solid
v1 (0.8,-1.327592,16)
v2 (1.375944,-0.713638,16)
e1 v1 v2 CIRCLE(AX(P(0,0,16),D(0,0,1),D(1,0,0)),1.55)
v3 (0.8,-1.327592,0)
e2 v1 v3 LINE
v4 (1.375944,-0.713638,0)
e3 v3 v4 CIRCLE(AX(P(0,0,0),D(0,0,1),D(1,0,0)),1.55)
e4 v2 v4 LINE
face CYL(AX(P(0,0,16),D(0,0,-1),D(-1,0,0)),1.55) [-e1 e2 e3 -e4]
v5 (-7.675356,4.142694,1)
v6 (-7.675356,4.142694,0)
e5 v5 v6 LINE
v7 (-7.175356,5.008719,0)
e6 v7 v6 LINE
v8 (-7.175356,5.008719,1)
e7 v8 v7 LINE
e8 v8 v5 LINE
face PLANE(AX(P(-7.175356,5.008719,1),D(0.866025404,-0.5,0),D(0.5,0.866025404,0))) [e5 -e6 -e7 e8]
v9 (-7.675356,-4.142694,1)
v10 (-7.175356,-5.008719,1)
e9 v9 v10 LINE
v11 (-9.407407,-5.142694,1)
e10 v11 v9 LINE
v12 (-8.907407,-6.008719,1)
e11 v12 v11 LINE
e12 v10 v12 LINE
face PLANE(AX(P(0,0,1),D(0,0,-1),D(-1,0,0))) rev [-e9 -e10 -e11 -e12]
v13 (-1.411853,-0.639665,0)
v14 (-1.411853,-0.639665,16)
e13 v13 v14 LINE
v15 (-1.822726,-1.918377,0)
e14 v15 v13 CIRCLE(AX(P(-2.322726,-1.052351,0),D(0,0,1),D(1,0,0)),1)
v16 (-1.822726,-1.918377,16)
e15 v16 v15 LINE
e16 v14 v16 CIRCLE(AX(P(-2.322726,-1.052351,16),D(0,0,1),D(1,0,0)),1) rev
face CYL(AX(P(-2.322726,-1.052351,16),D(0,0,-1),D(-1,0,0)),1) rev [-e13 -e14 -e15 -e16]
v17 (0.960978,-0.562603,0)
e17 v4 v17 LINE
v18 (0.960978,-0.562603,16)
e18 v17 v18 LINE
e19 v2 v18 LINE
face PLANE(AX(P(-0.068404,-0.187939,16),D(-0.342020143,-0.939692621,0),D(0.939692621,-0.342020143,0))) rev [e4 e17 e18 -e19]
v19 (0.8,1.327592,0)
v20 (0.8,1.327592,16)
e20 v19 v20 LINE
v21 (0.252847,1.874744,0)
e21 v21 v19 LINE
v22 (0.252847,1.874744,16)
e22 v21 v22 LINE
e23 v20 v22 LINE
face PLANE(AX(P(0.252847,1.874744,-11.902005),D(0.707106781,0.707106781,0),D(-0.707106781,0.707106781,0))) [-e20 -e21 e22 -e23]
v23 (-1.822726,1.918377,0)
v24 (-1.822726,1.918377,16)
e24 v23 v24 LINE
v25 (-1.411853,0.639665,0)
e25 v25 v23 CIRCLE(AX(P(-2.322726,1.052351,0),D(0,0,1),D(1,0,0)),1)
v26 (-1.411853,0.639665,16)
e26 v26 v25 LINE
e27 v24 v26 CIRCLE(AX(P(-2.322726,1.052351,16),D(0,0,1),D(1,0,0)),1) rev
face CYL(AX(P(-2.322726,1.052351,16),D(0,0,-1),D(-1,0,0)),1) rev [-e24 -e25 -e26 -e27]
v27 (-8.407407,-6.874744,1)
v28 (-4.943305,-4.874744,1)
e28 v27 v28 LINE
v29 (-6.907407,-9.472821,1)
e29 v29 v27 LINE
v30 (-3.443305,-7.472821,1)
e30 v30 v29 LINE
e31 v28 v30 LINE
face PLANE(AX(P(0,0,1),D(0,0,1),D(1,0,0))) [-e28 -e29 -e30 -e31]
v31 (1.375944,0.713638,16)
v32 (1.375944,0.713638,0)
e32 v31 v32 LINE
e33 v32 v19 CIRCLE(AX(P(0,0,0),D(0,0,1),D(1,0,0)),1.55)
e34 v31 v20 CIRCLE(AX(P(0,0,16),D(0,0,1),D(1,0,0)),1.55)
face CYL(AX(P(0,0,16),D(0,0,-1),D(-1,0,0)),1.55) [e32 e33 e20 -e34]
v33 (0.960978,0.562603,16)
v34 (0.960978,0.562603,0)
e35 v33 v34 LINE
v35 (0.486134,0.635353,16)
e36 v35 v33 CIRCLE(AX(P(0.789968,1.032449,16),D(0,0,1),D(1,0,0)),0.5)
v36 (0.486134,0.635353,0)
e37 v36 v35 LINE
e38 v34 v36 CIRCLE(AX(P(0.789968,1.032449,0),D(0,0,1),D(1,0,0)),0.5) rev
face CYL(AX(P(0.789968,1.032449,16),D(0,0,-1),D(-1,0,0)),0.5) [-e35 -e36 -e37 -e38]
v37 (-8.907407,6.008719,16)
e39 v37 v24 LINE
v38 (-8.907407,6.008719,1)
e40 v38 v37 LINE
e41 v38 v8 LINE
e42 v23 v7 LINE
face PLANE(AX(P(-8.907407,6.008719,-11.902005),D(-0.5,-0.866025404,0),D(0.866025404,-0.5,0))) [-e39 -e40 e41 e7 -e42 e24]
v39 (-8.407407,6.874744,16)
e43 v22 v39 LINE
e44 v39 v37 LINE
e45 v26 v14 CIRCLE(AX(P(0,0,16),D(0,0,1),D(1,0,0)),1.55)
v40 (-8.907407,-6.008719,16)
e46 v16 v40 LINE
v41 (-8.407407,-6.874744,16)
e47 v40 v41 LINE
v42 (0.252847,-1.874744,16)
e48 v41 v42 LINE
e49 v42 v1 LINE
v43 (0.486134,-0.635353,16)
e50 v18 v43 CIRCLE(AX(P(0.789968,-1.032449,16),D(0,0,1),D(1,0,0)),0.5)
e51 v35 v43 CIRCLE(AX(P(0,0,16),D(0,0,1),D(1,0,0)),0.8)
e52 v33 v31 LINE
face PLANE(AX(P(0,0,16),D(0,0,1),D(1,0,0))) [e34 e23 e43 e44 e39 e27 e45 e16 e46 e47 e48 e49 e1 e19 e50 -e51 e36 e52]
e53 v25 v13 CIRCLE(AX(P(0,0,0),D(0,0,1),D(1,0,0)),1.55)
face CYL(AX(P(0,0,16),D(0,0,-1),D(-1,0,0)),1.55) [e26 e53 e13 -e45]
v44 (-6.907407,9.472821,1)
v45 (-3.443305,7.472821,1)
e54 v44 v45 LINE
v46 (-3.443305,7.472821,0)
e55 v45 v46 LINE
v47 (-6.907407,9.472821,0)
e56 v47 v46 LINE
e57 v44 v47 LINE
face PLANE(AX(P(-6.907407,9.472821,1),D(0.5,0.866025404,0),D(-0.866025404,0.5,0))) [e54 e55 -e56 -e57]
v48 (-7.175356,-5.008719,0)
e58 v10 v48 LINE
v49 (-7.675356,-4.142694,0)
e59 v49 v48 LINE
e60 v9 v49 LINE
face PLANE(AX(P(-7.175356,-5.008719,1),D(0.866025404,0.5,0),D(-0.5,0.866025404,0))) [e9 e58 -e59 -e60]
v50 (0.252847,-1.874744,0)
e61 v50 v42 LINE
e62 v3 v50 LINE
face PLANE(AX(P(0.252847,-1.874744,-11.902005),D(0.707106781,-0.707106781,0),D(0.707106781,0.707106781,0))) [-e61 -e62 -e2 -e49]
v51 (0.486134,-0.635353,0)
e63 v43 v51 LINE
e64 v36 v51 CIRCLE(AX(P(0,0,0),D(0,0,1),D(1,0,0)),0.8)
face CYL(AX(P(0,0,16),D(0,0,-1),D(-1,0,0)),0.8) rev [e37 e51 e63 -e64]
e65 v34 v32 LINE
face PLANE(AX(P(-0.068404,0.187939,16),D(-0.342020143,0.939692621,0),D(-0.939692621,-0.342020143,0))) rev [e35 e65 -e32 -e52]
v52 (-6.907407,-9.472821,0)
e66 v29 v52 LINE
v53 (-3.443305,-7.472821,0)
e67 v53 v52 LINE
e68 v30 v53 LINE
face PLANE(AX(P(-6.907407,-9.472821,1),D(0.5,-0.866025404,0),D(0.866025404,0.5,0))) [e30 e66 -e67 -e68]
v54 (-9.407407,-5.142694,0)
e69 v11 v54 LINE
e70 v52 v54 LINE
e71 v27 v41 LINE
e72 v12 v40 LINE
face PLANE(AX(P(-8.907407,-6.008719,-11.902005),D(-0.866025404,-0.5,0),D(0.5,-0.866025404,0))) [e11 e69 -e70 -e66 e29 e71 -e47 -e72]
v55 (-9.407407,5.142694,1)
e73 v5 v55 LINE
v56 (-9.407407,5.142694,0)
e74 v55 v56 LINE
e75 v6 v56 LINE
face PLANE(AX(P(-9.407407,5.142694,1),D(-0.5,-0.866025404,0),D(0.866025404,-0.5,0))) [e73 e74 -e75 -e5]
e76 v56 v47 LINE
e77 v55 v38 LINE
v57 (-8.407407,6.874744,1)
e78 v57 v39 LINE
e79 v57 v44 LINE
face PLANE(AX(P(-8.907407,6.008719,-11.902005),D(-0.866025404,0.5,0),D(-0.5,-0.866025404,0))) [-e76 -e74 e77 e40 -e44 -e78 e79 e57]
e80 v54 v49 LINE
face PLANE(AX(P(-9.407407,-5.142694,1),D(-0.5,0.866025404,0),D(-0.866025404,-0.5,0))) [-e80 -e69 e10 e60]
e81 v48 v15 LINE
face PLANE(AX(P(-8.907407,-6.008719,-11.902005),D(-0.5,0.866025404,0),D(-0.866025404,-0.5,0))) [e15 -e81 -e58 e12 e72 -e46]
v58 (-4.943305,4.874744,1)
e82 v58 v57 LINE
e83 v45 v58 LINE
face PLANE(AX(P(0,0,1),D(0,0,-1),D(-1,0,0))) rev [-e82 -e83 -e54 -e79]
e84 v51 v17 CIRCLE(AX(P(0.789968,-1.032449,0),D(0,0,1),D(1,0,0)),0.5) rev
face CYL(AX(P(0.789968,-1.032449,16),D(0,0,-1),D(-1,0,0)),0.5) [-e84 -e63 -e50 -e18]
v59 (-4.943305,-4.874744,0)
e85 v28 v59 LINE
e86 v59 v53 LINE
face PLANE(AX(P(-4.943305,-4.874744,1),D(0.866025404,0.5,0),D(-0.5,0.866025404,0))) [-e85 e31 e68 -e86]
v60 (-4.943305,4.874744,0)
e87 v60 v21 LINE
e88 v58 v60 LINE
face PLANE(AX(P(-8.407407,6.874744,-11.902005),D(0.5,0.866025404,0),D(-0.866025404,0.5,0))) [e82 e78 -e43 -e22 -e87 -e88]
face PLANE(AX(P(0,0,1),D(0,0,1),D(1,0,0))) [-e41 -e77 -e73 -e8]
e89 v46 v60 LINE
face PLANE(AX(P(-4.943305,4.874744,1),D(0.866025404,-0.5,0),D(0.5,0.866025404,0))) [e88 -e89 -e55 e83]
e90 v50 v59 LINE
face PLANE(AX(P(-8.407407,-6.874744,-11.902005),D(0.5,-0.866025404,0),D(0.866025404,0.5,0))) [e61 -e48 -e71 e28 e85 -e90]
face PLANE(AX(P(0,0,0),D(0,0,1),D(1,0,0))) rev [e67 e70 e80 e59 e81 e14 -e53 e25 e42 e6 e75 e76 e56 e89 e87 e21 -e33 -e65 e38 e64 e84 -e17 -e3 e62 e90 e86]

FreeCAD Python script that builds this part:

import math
import FreeCAD as App
import Part
import Sketcher
Q = App.Units.Quantity


def edges_at(feature, points):
    """Names of the edges that pass closest to the given points."""
    edges = feature.Shape.Edges
    near = lambda p: min(range(len(edges)), key=lambda i: edges[i].distToShape(Part.Vertex(*p))[0])
    return sorted({f"Edge{near(p) + 1}" for p in points})


def add_polygon(sketch, points):
    """Adds a closed chain of lines whose ends are joined by coincident constraints."""
    first, n = sketch.GeometryCount, len(points)
    for a, b in zip(points, points[1:] + points[:1]):
        sketch.addGeometry(Part.LineSegment(App.Vector(*a, 0), App.Vector(*b, 0)), False)
    for i in range(n):
        sketch.addConstraint(Sketcher.Constraint("Coincident", first + i, 2, first + (i + 1) % n, 1))

doc = App.newDocument("Part")
body = doc.addObject("PartDesign::Body", "Body")

# Sketch on XY plane
sketch1 = body.newObject("Sketcher::SketchObject", "Sketch")
sketch1.AttachmentSupport = (doc.getObject("XY_Plane"), [""])
sketch1.MapMode = "FlatFace"
sketch1.addGeometry([
    Part.LineSegment(App.Vector(0.7, 0.5, 0), App.Vector(1.4, 0.7, 0)),
    Part.ArcOfCircle(Part.Circle(App.Vector(0, 0, 0), App.Vector(0, 0, 1), 1.6), math.radians(27), math.radians(333)),
    Part.LineSegment(App.Vector(1.4, -0.7, 0), App.Vector(0.7, -0.5, 0)),
    Part.ArcOfCircle(Part.Circle(App.Vector(0, 0, 0), App.Vector(0, 0, 1), 0.8), math.radians(34), math.radians(326)),
], False)
sketch1.addConstraint([
    Sketcher.Constraint("Coincident", 0, 2, 1, 1),
    Sketcher.Constraint("Coincident", 1, 2, 2, 1),
    Sketcher.Constraint("Coincident", 2, 2, 3, 2),
    Sketcher.Constraint("Coincident", 3, 1, 0, 1),
    Sketcher.Constraint("Coincident", 1, 3, -1, 1),
    Sketcher.Constraint("Coincident", 3, 3, -1, 1),
    Sketcher.Constraint("Vertical", 0, 2, 1, 2),
    Sketcher.Constraint("Vertical", 2, 2, 3, 1),
    Sketcher.Constraint("Radius", 3, Q("0.8 mm")),
    Sketcher.Constraint("Angle", 0, Q("20 deg")),
    Sketcher.Constraint("Radius", 1, Q("1.55 mm")),
    Sketcher.Constraint("DistanceY", -1, 1, 0, 2, Q("0.713638 mm")),
])
pad1 = body.newObject("PartDesign::Pad", "Pad")
pad1.Profile = sketch1
pad1.Length = 16

# Sketch on XY plane
sketch2 = body.newObject("Sketcher::SketchObject", "Sketch001")
sketch2.AttachmentSupport = (doc.getObject("XY_Plane"), [""])
sketch2.MapMode = "FlatFace"
sketch2.AttachmentOffset = App.Placement(App.Vector(0, 0, 16), App.Rotation())
add_polygon(sketch2, [(-8.4, 6.9), (-8.9, 6), (0.1, 0.8), (1.3, 0.8), (0.3, 1.9)])  # lines 0-4
add_polygon(sketch2, [(0.3, -1.9), (1.3, -0.8), (0.1, -0.8), (-8.9, -6), (-8.4, -6.9)])  # lines 5-9
sketch2.addConstraint([
    Sketcher.Constraint("Horizontal", 2),
    Sketcher.Constraint("Horizontal", 6),
    Sketcher.Constraint("Symmetric", 2, 2, 5, 2, -1),
    Sketcher.Constraint("Symmetric", 0, 2, 7, 2, -1),
    Sketcher.Constraint("Symmetric", 4, 2, 8, 2, -1),
    Sketcher.Constraint("Symmetric", 3, 2, 9, 2, -1),
    Sketcher.Constraint("Perpendicular", 0, 1),
    Sketcher.Constraint("Parallel", 1, 4),
    Sketcher.Constraint("Perpendicular", 3, 5),
    Sketcher.Constraint("Perpendicular", 7, 8),
    Sketcher.Constraint("Angle", 0, Q("-120 deg")),
    Sketcher.Constraint("Distance", 0, Q("1 mm")),
    Sketcher.Constraint("Distance", 4, Q("10 mm")),
    Sketcher.Constraint("DistanceY", -1, 1, 1, 2, Q("0.8 mm")),
    Sketcher.Constraint("DistanceX", 0, 2, 2, 2, Q("10.234998 mm")),
    Sketcher.Constraint("DistanceX", -1, 1, 1, 2, Q("0.114359 mm")),
])
pad2 = body.newObject("PartDesign::Pad", "Pad001")
pad2.Profile = sketch2
pad2.Length = 16
pad2.Reversed = True
doc.recompute()

fillet = body.newObject("PartDesign::Fillet", "Fillet")
fillet.Base = (pad2, edges_at(pad2, [(0.659, -0.453, 8), (0.659, 0.453, 8)]))
fillet.Radius = 0.5

# Sketch on XY plane
sketch3 = body.newObject("Sketcher::SketchObject", "Sketch002")
sketch3.AttachmentSupport = (doc.getObject("XY_Plane"), [""])
sketch3.MapMode = "FlatFace"
add_polygon(sketch3, [(-4.9, 4.9), (-8.4, 6.9), (-6.9, 9.5), (-3.4, 7.5)])  # lines 0-3
add_polygon(sketch3, [(-3.4, -7.5), (-6.9, -9.5), (-8.4, -6.9), (-4.9, -4.9)])  # lines 4-7
add_polygon(sketch3, [(-8.9, 6), (-7.2, 5), (-7.7, 4.1), (-9.4, 5.1)])  # lines 8-11
add_polygon(sketch3, [(-9.4, -5.1), (-7.7, -4.1), (-7.2, -5), (-8.9, -6)])  # lines 12-15
sketch3.addConstraint([
    Sketcher.Constraint("Symmetric", 1, 2, 4, 2, -1),
    Sketcher.Constraint("Symmetric", 0, 2, 5, 2, -1),
    Sketcher.Constraint("Symmetric", 3, 2, 6, 2, -1),
    Sketcher.Constraint("Symmetric", 2, 2, 7, 2, -1),
    Sketcher.Constraint("Symmetric", 9, 2, 12, 2, -1),
    Sketcher.Constraint("Symmetric", 8, 2, 13, 2, -1),
    Sketcher.Constraint("Symmetric", 11, 2, 14, 2, -1),
    Sketcher.Constraint("Symmetric", 10, 2, 15, 2, -1),
    Sketcher.Constraint("Perpendicular", 0, 1),
    Sketcher.Constraint("Perpendicular", 1, 2),
    Sketcher.Constraint("Perpendicular", 2, 3),
    Sketcher.Constraint("Perpendicular", 3, 8),
    Sketcher.Constraint("Perpendicular", 8, 9),
    Sketcher.Constraint("Perpendicular", 9, 10),
    Sketcher.Constraint("Perpendicular", 10, 11),
    Sketcher.Constraint("Angle", 0, Q("150 deg")),
    Sketcher.Constraint("Distance", 0, Q("4 mm")),
    Sketcher.Constraint("Distance", 1, Q("3 mm")),
    Sketcher.Constraint("Distance", 8, Q("2 mm")),
    Sketcher.Constraint("Distance", 9, Q("1 mm")),
    Sketcher.Constraint("DistanceX", 10, 2, 0, 2, Q("1 mm")),
    Sketcher.Constraint("DistanceY", 8, 2, 1, 2, Q("4.464102 mm")),
    Sketcher.Constraint("DistanceY", -1, 1, 1, 2, Q("9.472821 mm")),
    Sketcher.Constraint("DistanceX", 0, 2, -1, 1, Q("8.407407 mm")),
])
pad3 = body.newObject("PartDesign::Pad", "Pad002")
pad3.Profile = sketch3
pad3.Length = 1
doc.recompute()

fillet2 = body.newObject("PartDesign::Fillet", "Fillet001")
fillet2.Base = (pad3, edges_at(pad3, [(-0.8, 1.328, 8), (-0.8, -1.328, 8)]))
fillet2.Radius = 1

doc.recompute()
